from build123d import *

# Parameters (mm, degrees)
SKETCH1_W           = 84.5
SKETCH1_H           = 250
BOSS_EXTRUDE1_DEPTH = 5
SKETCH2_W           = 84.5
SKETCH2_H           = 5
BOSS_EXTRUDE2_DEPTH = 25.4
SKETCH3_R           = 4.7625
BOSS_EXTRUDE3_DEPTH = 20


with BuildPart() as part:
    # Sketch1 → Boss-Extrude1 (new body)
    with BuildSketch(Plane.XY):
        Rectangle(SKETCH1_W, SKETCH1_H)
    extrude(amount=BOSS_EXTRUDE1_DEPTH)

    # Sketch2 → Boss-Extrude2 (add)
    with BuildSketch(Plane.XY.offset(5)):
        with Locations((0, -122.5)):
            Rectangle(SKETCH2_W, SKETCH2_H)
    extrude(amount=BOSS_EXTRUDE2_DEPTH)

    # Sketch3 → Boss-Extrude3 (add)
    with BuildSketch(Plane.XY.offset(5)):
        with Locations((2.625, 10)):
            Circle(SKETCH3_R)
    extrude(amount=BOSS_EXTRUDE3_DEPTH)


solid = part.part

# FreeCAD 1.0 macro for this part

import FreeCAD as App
import Part
import Sketcher
Q = App.Units.Quantity


def add_polygon(sketch, points):
    """Adds a closed chain of lines whose ends are joined by coincident constraints."""
    first, n = sketch.GeometryCount, len(points)
    for a, b in zip(points, points[1:] + points[:1]):
        sketch.addGeometry(Part.LineSegment(App.Vector(*a, 0), App.Vector(*b, 0)), False)
    for i in range(n):
        sketch.addConstraint(Sketcher.Constraint("Coincident", first + i, 2, first + (i + 1) % n, 1))

doc = App.newDocument("Part")
body = doc.addObject("PartDesign::Body", "Body")

# Sketch on XY plane
sketch1 = body.newObject("Sketcher::SketchObject", "Sketch")
sketch1.AttachmentSupport = (doc.getObject("XY_Plane"), [""])
sketch1.MapMode = "FlatFace"
add_polygon(sketch1, [(-42, 125), (-42, -125), (42, -125), (42, 125)])  # lines 0-3
sketch1.addConstraint(Sketcher.Constraint("Vertical", 0))
sketch1.addConstraint(Sketcher.Constraint("Horizontal", 1))
sketch1.addConstraint(Sketcher.Constraint("Vertical", 2))
sketch1.addConstraint(Sketcher.Constraint("Horizontal", 3))
sketch1.addConstraint(Sketcher.Constraint("Symmetric", 0, 2, 2, 2, -1, 1))
sketch1.addConstraint(Sketcher.Constraint("DistanceY", 0, 2, 0, 1, Q("250 mm")))
sketch1.addConstraint(Sketcher.Constraint("DistanceX", 1, 1, 1, 2, Q("84.5 mm")))
pad1 = body.newObject("PartDesign::Pad", "Pad")
pad1.Profile = sketch1
pad1.Length = 5

# Sketch on XY plane
sketch2 = body.newObject("Sketcher::SketchObject", "Sketch001")
sketch2.AttachmentSupport = (doc.getObject("XY_Plane"), [""])
sketch2.MapMode = "FlatFace"
sketch2.AttachmentOffset = App.Placement(App.Vector(0, 0, 5), App.Rotation())
add_polygon(sketch2, [(-42, -120), (-42, -125), (42, -125), (42, -120)])  # lines 0-3
sketch2.addConstraint(Sketcher.Constraint("Vertical", 0))
sketch2.addConstraint(Sketcher.Constraint("Horizontal", 1))
sketch2.addConstraint(Sketcher.Constraint("Vertical", 2))
sketch2.addConstraint(Sketcher.Constraint("Horizontal", 3))
sketch2.addConstraint(Sketcher.Constraint("DistanceY", 0, 2, 0, 1, Q("5 mm")))
sketch2.addConstraint(Sketcher.Constraint("DistanceX", 1, 1, 1, 2, Q("84.5 mm")))
sketch2.addConstraint(Sketcher.Constraint("DistanceY", 0, 2, -1, 1, Q("125 mm")))
sketch2.addConstraint(Sketcher.Constraint("DistanceX", 0, 2, -1, 1, Q("42.25 mm")))
pad2 = body.newObject("PartDesign::Pad", "Pad001")
pad2.Profile = sketch2
pad2.Length = 25.4

# Sketch on XY plane
sketch3 = body.newObject("Sketcher::SketchObject", "Sketch002")
sketch3.AttachmentSupport = (doc.getObject("XY_Plane"), [""])
sketch3.MapMode = "FlatFace"
sketch3.AttachmentOffset = App.Placement(App.Vector(0, 0, 5), App.Rotation())
sketch3.addGeometry(Part.Circle(App.Vector(2.6, 10, 0), App.Vector(0, 0, 1), 4.8), False)
sketch3.addConstraint(Sketcher.Constraint("Diameter", 0, Q("9.525 mm")))
sketch3.addConstraint(Sketcher.Constraint("DistanceY", -1, 1, 0, 3, Q("10 mm")))
sketch3.addConstraint(Sketcher.Constraint("DistanceX", -1, 1, 0, 3, Q("2.625 mm")))
pad3 = body.newObject("PartDesign::Pad", "Pad002")
pad3.Profile = sketch3
pad3.Length = 20

doc.recompute()
